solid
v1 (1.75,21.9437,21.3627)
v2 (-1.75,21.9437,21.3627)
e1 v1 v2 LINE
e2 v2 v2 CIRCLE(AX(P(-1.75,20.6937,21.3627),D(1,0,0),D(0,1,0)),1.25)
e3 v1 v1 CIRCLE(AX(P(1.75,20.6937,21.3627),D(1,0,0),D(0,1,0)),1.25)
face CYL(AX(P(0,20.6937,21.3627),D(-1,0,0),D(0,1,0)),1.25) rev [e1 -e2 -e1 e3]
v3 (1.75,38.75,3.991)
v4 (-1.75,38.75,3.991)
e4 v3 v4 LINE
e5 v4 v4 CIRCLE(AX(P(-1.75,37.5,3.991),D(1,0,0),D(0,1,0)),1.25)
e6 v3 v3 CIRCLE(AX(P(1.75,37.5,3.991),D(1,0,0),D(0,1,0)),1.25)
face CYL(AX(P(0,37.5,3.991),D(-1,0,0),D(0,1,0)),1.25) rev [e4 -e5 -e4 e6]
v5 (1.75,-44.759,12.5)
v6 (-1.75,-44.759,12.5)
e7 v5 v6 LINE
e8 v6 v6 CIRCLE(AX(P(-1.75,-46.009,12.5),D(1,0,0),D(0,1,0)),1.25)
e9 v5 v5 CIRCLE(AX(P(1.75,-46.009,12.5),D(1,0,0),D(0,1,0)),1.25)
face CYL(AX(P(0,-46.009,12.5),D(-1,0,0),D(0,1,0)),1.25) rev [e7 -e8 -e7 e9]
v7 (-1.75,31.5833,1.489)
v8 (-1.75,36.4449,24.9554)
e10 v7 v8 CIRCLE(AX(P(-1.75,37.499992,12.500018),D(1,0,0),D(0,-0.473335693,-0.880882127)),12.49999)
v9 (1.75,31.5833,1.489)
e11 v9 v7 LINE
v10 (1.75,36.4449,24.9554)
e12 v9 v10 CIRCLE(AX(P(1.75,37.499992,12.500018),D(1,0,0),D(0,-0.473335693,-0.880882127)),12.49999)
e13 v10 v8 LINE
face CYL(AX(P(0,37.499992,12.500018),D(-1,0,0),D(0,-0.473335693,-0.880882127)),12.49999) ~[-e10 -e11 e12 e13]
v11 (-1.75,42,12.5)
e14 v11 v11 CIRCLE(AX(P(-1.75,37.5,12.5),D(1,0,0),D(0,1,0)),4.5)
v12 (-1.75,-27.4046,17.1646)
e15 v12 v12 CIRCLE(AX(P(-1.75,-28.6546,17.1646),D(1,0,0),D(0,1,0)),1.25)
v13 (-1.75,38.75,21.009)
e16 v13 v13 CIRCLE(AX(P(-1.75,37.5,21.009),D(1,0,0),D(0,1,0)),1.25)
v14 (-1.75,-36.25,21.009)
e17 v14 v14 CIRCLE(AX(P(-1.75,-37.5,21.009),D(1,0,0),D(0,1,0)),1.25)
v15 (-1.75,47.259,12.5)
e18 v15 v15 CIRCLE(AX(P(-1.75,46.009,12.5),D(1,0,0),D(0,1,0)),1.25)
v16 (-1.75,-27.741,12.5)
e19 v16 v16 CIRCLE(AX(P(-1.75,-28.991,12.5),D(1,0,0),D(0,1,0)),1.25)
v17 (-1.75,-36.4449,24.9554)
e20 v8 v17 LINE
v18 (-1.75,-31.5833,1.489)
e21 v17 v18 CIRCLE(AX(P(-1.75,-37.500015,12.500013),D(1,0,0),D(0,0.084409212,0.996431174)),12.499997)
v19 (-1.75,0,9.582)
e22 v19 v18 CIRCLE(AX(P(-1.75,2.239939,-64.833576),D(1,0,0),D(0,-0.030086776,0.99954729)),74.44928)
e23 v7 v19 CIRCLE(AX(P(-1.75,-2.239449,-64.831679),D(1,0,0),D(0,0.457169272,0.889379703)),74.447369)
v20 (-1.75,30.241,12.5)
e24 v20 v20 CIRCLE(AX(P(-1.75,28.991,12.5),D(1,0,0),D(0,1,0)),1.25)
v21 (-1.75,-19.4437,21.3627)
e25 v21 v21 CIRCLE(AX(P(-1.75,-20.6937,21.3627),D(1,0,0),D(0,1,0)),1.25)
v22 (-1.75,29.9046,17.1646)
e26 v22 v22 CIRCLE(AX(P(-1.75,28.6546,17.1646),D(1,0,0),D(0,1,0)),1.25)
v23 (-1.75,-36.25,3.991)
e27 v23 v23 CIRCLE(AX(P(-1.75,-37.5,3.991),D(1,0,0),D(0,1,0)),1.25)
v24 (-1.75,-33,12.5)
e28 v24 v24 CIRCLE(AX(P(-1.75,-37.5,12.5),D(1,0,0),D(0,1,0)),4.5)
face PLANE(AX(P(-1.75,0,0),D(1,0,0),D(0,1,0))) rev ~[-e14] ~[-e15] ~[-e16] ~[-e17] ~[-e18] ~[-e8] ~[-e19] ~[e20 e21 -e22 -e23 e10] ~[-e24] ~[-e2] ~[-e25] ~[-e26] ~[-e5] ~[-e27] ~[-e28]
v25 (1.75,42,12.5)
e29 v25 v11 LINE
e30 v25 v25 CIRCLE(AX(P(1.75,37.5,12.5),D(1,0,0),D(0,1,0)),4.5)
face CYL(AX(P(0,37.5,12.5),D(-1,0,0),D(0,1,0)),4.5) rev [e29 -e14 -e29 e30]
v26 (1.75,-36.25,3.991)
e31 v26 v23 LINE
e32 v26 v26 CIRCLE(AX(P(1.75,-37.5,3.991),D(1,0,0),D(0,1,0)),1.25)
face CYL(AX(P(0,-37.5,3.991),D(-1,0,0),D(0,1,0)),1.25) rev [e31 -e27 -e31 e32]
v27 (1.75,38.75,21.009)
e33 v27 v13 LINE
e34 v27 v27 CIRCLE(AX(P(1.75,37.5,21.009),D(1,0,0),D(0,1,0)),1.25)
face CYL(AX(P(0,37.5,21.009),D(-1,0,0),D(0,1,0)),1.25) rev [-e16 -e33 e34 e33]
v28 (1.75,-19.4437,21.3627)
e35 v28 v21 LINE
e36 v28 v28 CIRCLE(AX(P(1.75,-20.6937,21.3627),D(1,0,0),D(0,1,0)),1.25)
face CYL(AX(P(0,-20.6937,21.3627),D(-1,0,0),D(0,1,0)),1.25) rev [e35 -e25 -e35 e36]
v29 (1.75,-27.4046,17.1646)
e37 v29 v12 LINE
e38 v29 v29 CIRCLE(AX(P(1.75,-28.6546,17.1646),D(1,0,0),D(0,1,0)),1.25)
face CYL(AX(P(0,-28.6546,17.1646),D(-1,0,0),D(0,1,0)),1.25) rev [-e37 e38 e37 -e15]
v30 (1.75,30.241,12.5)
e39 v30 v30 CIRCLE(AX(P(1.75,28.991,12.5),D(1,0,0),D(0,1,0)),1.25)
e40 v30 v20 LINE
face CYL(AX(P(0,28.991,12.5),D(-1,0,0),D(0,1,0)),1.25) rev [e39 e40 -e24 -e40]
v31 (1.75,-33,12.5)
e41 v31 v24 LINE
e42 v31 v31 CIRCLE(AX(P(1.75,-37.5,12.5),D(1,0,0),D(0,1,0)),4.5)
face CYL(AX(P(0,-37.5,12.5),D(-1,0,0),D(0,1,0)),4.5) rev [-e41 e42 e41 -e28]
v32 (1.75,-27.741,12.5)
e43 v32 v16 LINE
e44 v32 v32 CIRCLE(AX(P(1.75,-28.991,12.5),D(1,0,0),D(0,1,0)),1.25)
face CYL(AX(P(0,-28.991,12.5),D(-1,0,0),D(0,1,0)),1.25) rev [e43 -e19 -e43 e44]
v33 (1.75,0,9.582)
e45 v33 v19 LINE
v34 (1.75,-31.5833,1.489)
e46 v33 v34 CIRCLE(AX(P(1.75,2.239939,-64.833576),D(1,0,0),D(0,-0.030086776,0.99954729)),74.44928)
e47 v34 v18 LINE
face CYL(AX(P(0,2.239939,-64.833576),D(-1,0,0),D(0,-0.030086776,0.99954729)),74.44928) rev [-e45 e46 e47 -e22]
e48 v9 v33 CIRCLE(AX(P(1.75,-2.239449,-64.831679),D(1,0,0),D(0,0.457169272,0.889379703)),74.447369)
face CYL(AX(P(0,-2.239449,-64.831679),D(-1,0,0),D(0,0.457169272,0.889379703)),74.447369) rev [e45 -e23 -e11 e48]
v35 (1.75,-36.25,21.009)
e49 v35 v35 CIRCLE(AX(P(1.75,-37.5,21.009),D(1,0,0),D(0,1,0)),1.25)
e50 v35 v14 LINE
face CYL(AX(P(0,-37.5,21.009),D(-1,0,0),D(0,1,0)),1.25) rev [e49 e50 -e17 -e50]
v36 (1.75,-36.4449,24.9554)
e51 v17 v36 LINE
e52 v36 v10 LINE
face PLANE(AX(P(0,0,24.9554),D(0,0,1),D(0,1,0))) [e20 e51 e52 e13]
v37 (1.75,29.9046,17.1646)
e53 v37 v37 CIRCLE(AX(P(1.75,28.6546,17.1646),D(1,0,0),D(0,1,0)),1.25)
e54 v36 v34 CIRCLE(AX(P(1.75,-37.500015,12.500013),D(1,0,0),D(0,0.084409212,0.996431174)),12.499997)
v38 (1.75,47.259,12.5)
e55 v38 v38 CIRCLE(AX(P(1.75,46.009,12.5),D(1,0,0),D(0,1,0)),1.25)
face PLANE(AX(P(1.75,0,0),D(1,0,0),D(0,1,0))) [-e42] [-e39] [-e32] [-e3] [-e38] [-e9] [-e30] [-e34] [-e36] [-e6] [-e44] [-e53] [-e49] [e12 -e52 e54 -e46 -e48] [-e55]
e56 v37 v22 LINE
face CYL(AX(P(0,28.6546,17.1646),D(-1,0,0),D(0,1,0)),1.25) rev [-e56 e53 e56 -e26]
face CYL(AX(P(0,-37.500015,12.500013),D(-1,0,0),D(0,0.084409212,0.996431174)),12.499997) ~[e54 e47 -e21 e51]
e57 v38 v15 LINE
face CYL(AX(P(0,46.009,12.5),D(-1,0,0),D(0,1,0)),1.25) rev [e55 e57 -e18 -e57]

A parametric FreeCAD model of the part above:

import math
import FreeCAD as App
import Part
import Sketcher

V = App.Vector

doc = App.newDocument("Part")
body = doc.addObject("PartDesign::Body", "Body")

# Sketch on YZ plane
sketch1 = doc.addObject("Sketcher::SketchObject", "Sketch")
body.addObject(sketch1)
sketch1.AttachmentSupport = (doc.YZ_Plane, [""])
sketch1.MapMode = "FlatFace"
sketch1.addGeometry(Part.LineSegment(V(36.4, 25, 0), V(-36.4, 25, 0)), False)
sketch1.addGeometry(Part.ArcOfCircle(Part.Circle(V(-37.5, 12.5, 0), V(0, 0, 1), 12.5), math.radians(85), math.radians(298)), False)
sketch1.addGeometry(Part.ArcOfCircle(Part.Circle(V(2.2, -64.8, 0), V(0, 0, 1), 74.4), math.radians(92), math.radians(117)), False)
sketch1.addGeometry(Part.ArcOfCircle(Part.Circle(V(-2.2, -64.8, 0), V(0, 0, 1), 74.4), math.radians(63), math.radians(88)), False)
sketch1.addGeometry(Part.ArcOfCircle(Part.Circle(V(37.5, 12.5, 0), V(0, 0, 1), 12.5), math.radians(-118), math.radians(95)), False)
sketch1.addGeometry(Part.Circle(V(-37.5, 4, 0), V(0, 0, 1), 1.2), False)
sketch1.addGeometry(Part.Circle(V(-46, 12.5, 0), V(0, 0, 1), 1.2), False)
sketch1.addGeometry(Part.Circle(V(-37.5, 12.5, 0), V(0, 0, 1), 4.5), False)
sketch1.addGeometry(Part.Circle(V(-29, 12.5, 0), V(0, 0, 1), 1.2), False)
sketch1.addGeometry(Part.Circle(V(37.5, 4, 0), V(0, 0, 1), 1.2), False)
sketch1.addGeometry(Part.Circle(V(29, 12.5, 0), V(0, 0, 1), 1.2), False)
sketch1.addGeometry(Part.Circle(V(37.5, 12.5, 0), V(0, 0, 1), 4.5), False)
sketch1.addGeometry(Part.Circle(V(46, 12.5, 0), V(0, 0, 1), 1.2), False)
sketch1.addGeometry(Part.Circle(V(-28.7, 17.2, 0), V(0, 0, 1), 1.2), False)
sketch1.addGeometry(Part.Circle(V(-37.5, 21, 0), V(0, 0, 1), 1.2), False)
sketch1.addGeometry(Part.Circle(V(-20.7, 21.4, 0), V(0, 0, 1), 1.2), False)
sketch1.addGeometry(Part.Circle(V(28.7, 17.2, 0), V(0, 0, 1), 1.2), False)
sketch1.addGeometry(Part.Circle(V(20.7, 21.4, 0), V(0, 0, 1), 1.2), False)
sketch1.addGeometry(Part.Circle(V(37.5, 21, 0), V(0, 0, 1), 1.2), False)
sketch1.addConstraint(Sketcher.Constraint("Coincident", 0, 2, 1, 1))
sketch1.addConstraint(Sketcher.Constraint("Coincident", 1, 2, 2, 2))
sketch1.addConstraint(Sketcher.Constraint("Coincident", 2, 1, 3, 2))
sketch1.addConstraint(Sketcher.Constraint("Coincident", 3, 1, 4, 1))
sketch1.addConstraint(Sketcher.Constraint("Coincident", 4, 2, 0, 1))
sketch1.addConstraint(Sketcher.Constraint("Horizontal", 0))
sketch1.addConstraint(Sketcher.Constraint("Coincident", 7, 3, 1, 3))
sketch1.addConstraint(Sketcher.Constraint("Coincident", 11, 3, 4, 3))
sketch1.addConstraint(Sketcher.Constraint("Equal", 2, 3))
sketch1.addConstraint(Sketcher.Constraint("Equal", 1, 4))
sketch1.addConstraint(Sketcher.Constraint("Equal", 5, 6))
sketch1.addConstraint(Sketcher.Constraint("Equal", 6, 8))
sketch1.addConstraint(Sketcher.Constraint("Equal", 8, 9))
sketch1.addConstraint(Sketcher.Constraint("Equal", 9, 10))
sketch1.addConstraint(Sketcher.Constraint("Equal", 7, 11))
sketch1.addConstraint(Sketcher.Constraint("Equal", 10, 12))
sketch1.addConstraint(Sketcher.Constraint("Equal", 12, 13))
sketch1.addConstraint(Sketcher.Constraint("Equal", 13, 14))
sketch1.addConstraint(Sketcher.Constraint("Equal", 14, 15))
sketch1.addConstraint(Sketcher.Constraint("Equal", 15, 16))
sketch1.addConstraint(Sketcher.Constraint("Equal", 16, 17))
sketch1.addConstraint(Sketcher.Constraint("Equal", 17, 18))
sketch1.addConstraint(Sketcher.Constraint("Symmetric", 2, 3, 3, 3, -2))
sketch1.addConstraint(Sketcher.Constraint("Symmetric", 1, 3, 4, 3, -2))
sketch1.addConstraint(Sketcher.Constraint("Symmetric", 5, 3, 9, 3, -2))
sketch1.addConstraint(Sketcher.Constraint("Symmetric", 8, 3, 10, 3, -2))
sketch1.addConstraint(Sketcher.Constraint("Symmetric", 6, 3, 12, 3, -2))
sketch1.addConstraint(Sketcher.Constraint("Symmetric", 13, 3, 16, 3, -2))
sketch1.addConstraint(Sketcher.Constraint("Symmetric", 15, 3, 17, 3, -2))
sketch1.addConstraint(Sketcher.Constraint("Symmetric", 14, 3, 18, 3, -2))
sketch1.addConstraint(Sketcher.Constraint("Horizontal", 4, 3, 6, 3))
sketch1.addConstraint(Sketcher.Constraint("Horizontal", 7, 3, 8, 3))
sketch1.addConstraint(Sketcher.Constraint("Vertical", 1, 3, 5, 3))
sketch1.addConstraint(Sketcher.Constraint("Vertical", 7, 3, 14, 3))
sketch1.addConstraint(Sketcher.Constraint("Diameter", 7, 9.0))
sketch1.addConstraint(Sketcher.Constraint("DistanceX", 1, 3, 4, 3, 75.0))
sketch1.addConstraint(Sketcher.Constraint("DistanceX", 8, 3, 12, 3, 75.0))
sketch1.addConstraint(Sketcher.Constraint("Diameter", 5, 2.5))
sketch1.addConstraint(Sketcher.Constraint("Radius", 1, 12.5))
sketch1.addConstraint(Sketcher.Constraint("DistanceY", 5, 3, 1, 3, 8.509))
sketch1.addConstraint(Sketcher.Constraint("DistanceX", 6, 3, 1, 3, 8.509))
sketch1.addConstraint(Sketcher.Constraint("DistanceY", 1, 3, 14, 3, 8.509))
sketch1.addConstraint(Sketcher.Constraint("DistanceY", 13, 3, 15, 3, 4.198))
sketch1.addConstraint(Sketcher.Constraint("DistanceY", -1, 1, 1, 3, 12.5))
sketch1.addConstraint(Sketcher.Constraint("Radius", 2, 74.4483))
sketch1.addConstraint(Sketcher.Constraint("DistanceX", 0, 2, 0, 1, 72.8898))
sketch1.addConstraint(Sketcher.Constraint("DistanceY", -1, 1, 1, 2, 1.489))
sketch1.addConstraint(Sketcher.Constraint("DistanceY", -1, 1, 2, 1, 9.582))
sketch1.addConstraint(Sketcher.Constraint("DistanceX", 13, 3, 15, 3, 7.961))
sketch1.addConstraint(Sketcher.Constraint("DistanceX", 13, 3, -1, 1, 28.6546))
sketch1.addConstraint(Sketcher.Constraint("DistanceY", -1, 1, 13, 3, 17.1646))
pad1 = doc.addObject("PartDesign::Pad", "Pad")
body.addObject(pad1)
pad1.Profile = sketch1
pad1.Length = 3.5
pad1.Midplane = True

doc.recompute()
